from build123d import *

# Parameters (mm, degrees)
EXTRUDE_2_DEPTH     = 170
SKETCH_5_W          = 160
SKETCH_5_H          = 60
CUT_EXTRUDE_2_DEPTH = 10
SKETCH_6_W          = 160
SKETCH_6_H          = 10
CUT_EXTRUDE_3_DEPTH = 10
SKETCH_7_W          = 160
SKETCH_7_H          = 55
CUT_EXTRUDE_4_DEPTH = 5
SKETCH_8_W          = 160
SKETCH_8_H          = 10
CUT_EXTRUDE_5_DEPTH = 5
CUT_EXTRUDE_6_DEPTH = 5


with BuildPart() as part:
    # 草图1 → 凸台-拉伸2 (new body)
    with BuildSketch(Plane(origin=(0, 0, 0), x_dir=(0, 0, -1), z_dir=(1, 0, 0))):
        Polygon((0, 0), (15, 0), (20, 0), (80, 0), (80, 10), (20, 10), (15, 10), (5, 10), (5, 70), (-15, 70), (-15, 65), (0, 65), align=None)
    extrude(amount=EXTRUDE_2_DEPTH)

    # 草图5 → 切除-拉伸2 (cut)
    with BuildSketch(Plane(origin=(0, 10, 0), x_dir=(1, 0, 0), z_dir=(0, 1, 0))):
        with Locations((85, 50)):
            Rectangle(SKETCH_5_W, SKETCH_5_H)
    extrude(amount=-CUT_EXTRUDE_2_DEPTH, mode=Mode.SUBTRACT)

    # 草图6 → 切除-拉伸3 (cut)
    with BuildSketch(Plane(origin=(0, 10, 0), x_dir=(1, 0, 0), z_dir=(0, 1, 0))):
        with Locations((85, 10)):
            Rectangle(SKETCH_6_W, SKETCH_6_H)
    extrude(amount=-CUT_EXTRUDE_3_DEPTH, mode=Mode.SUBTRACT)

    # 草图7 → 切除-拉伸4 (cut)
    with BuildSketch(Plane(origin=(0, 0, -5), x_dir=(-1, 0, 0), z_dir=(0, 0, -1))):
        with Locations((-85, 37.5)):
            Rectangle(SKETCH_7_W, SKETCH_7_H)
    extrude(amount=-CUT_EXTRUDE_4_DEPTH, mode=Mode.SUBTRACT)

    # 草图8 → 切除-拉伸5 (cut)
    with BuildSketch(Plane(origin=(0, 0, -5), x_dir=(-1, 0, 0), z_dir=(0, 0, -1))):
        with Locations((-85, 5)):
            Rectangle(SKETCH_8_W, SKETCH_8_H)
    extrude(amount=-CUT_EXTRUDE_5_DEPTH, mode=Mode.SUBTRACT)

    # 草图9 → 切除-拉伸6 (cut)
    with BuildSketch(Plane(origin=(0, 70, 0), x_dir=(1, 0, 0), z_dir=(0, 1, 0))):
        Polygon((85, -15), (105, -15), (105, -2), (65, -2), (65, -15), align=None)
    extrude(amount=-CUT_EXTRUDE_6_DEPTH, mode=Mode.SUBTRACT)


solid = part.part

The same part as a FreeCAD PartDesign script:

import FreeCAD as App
import Part
import Sketcher
Q = App.Units.Quantity


def add_polygon(sketch, points):
    """Adds a closed chain of lines whose ends are joined by coincident constraints."""
    first, n = sketch.GeometryCount, len(points)
    for a, b in zip(points, points[1:] + points[:1]):
        sketch.addGeometry(Part.LineSegment(App.Vector(*a, 0), App.Vector(*b, 0)), False)
    for i in range(n):
        sketch.addConstraint(Sketcher.Constraint("Coincident", first + i, 2, first + (i + 1) % n, 1))

doc = App.newDocument("Part")
body = doc.addObject("PartDesign::Body", "Body")

# Sketch on YZ plane
sketch1 = body.newObject("Sketcher::SketchObject", "Sketch")
sketch1.AttachmentSupport = (doc.getObject("YZ_Plane"), [""])
sketch1.MapMode = "FlatFace"
add_polygon(sketch1, [(0, 0), (0, -80), (10, -80), (10, -5), (70, -5), (70, 15), (65, 15), (65, 0)])  # lines 0-7
sketch1.addConstraint([
    Sketcher.Constraint("Vertical", 0),
    Sketcher.Constraint("Horizontal", 1),
    Sketcher.Constraint("Vertical", 2),
    Sketcher.Constraint("Horizontal", 3),
    Sketcher.Constraint("Vertical", 4),
    Sketcher.Constraint("Horizontal", 5),
    Sketcher.Constraint("Vertical", 6),
    Sketcher.Constraint("Horizontal", 7),
    Sketcher.Constraint("Coincident", 7, 2, -1, 1),
    Sketcher.Constraint("DistanceX", 1, 1, 1, 2, Q("10 mm")),
    Sketcher.Constraint("DistanceX", 3, 1, 3, 2, Q("60 mm")),
    Sketcher.Constraint("DistanceX", 5, 2, 5, 1, Q("5 mm")),
    Sketcher.Constraint("DistanceY", 0, 2, 0, 1, Q("80 mm")),
    Sketcher.Constraint("DistanceY", 2, 1, 2, 2, Q("75 mm")),
    Sketcher.Constraint("DistanceY", 4, 1, 4, 2, Q("20 mm")),
])
pad1 = body.newObject("PartDesign::Pad", "Pad")
pad1.Profile = sketch1
pad1.Length = 170

# Sketch on XZ plane
sketch2 = body.newObject("Sketcher::SketchObject", "Sketch001")
sketch2.AttachmentSupport = (doc.getObject("XZ_Plane"), [""])
sketch2.MapMode = "FlatFace"
sketch2.AttachmentOffset = App.Placement(App.Vector(0, 0, -10), App.Rotation())
add_polygon(sketch2, [(5, -80), (5, -20), (165, -20), (165, -80)])  # lines 0-3
sketch2.addConstraint([
    Sketcher.Constraint("Vertical", 0),
    Sketcher.Constraint("Horizontal", 1),
    Sketcher.Constraint("Vertical", 2),
    Sketcher.Constraint("Horizontal", 3),
    Sketcher.Constraint("DistanceX", 1, 1, 1, 2, Q("160 mm")),
    Sketcher.Constraint("DistanceY", 0, 1, 0, 2, Q("60 mm")),
    Sketcher.Constraint("DistanceX", -1, 1, 0, 2, Q("5 mm")),
    Sketcher.Constraint("DistanceY", 0, 2, -1, 1, Q("20 mm")),
])
pocket1 = body.newObject("PartDesign::Pocket", "Pocket")
pocket1.Profile = sketch2
pocket1.Length = 10
pocket1.Reversed = True

# Sketch on XZ plane
sketch3 = body.newObject("Sketcher::SketchObject", "Sketch002")
sketch3.AttachmentSupport = (doc.getObject("XZ_Plane"), [""])
sketch3.MapMode = "FlatFace"
sketch3.AttachmentOffset = App.Placement(App.Vector(0, 0, -10), App.Rotation())
add_polygon(sketch3, [(5, -15), (5, -5), (165, -5), (165, -15)])  # lines 0-3
sketch3.addConstraint([
    Sketcher.Constraint("Vertical", 0),
    Sketcher.Constraint("Horizontal", 1),
    Sketcher.Constraint("Vertical", 2),
    Sketcher.Constraint("Horizontal", 3),
    Sketcher.Constraint("DistanceX", 1, 1, 1, 2, Q("160 mm")),
    Sketcher.Constraint("DistanceY", 0, 1, 0, 2, Q("10 mm")),
    Sketcher.Constraint("DistanceX", -1, 1, 0, 2, Q("5 mm")),
    Sketcher.Constraint("DistanceY", 0, 2, -1, 1, Q("5 mm")),
])
pocket2 = body.newObject("PartDesign::Pocket", "Pocket001")
pocket2.Profile = sketch3
pocket2.Length = 10
pocket2.Reversed = True

# Sketch on XY plane
sketch4 = body.newObject("Sketcher::SketchObject", "Sketch003")
sketch4.AttachmentSupport = (doc.getObject("XY_Plane"), [""])
sketch4.MapMode = "FlatFace"
sketch4.AttachmentOffset = App.Placement(App.Vector(0, 0, -5), App.Rotation())
add_polygon(sketch4, [(165, 65), (165, 10), (5, 10), (5, 65)])  # lines 0-3
sketch4.addConstraint([
    Sketcher.Constraint("Vertical", 0),
    Sketcher.Constraint("Horizontal", 1),
    Sketcher.Constraint("Vertical", 2),
    Sketcher.Constraint("Horizontal", 3),
    Sketcher.Constraint("DistanceX", 1, 2, 1, 1, Q("160 mm")),
    Sketcher.Constraint("DistanceY", 0, 2, 0, 1, Q("55 mm")),
    Sketcher.Constraint("DistanceX", -1, 1, 0, 2, Q("165 mm")),
    Sketcher.Constraint("DistanceY", -1, 1, 0, 2, Q("10 mm")),
])
pocket3 = body.newObject("PartDesign::Pocket", "Pocket002")
pocket3.Profile = sketch4
pocket3.Length = 5
pocket3.Reversed = True

# Sketch on XY plane
sketch5 = body.newObject("Sketcher::SketchObject", "Sketch004")
sketch5.AttachmentSupport = (doc.getObject("XY_Plane"), [""])
sketch5.MapMode = "FlatFace"
sketch5.AttachmentOffset = App.Placement(App.Vector(0, 0, -5), App.Rotation())
add_polygon(sketch5, [(165, 10), (165, 0), (5, 0), (5, 10)])  # lines 0-3
sketch5.addConstraint([
    Sketcher.Constraint("Vertical", 0),
    Sketcher.Constraint("Horizontal", 1),
    Sketcher.Constraint("Vertical", 2),
    Sketcher.Constraint("Horizontal", 3),
    Sketcher.Constraint("PointOnObject", 0, 2, -1),
    Sketcher.Constraint("DistanceX", 1, 2, 1, 1, Q("160 mm")),
    Sketcher.Constraint("DistanceY", 0, 2, 0, 1, Q("10 mm")),
    Sketcher.Constraint("DistanceX", -1, 1, 0, 2, Q("165 mm")),
])
pocket4 = body.newObject("PartDesign::Pocket", "Pocket003")
pocket4.Profile = sketch5
pocket4.Length = 5
pocket4.Reversed = True

# Sketch on XZ plane
sketch6 = body.newObject("Sketcher::SketchObject", "Sketch005")
sketch6.AttachmentSupport = (doc.getObject("XZ_Plane"), [""])
sketch6.MapMode = "FlatFace"
sketch6.AttachmentOffset = App.Placement(App.Vector(0, 0, -70), App.Rotation())
add_polygon(sketch6, [(105, 15), (105, 2), (65, 2), (65, 15)])  # lines 0-3
sketch6.addConstraint([
    Sketcher.Constraint("Vertical", 0),
    Sketcher.Constraint("Horizontal", 1),
    Sketcher.Constraint("Vertical", 2),
    Sketcher.Constraint("Horizontal", 3),
    Sketcher.Constraint("DistanceX", 1, 2, 1, 1, Q("40 mm")),
    Sketcher.Constraint("DistanceY", 0, 2, 0, 1, Q("13 mm")),
    Sketcher.Constraint("DistanceX", -1, 1, 0, 2, Q("105 mm")),
    Sketcher.Constraint("DistanceY", -1, 1, 0, 2, Q("2 mm")),
])
pocket5 = body.newObject("PartDesign::Pocket", "Pocket004")
pocket5.Profile = sketch6
pocket5.Length = 5
pocket5.Reversed = True

doc.recompute()
